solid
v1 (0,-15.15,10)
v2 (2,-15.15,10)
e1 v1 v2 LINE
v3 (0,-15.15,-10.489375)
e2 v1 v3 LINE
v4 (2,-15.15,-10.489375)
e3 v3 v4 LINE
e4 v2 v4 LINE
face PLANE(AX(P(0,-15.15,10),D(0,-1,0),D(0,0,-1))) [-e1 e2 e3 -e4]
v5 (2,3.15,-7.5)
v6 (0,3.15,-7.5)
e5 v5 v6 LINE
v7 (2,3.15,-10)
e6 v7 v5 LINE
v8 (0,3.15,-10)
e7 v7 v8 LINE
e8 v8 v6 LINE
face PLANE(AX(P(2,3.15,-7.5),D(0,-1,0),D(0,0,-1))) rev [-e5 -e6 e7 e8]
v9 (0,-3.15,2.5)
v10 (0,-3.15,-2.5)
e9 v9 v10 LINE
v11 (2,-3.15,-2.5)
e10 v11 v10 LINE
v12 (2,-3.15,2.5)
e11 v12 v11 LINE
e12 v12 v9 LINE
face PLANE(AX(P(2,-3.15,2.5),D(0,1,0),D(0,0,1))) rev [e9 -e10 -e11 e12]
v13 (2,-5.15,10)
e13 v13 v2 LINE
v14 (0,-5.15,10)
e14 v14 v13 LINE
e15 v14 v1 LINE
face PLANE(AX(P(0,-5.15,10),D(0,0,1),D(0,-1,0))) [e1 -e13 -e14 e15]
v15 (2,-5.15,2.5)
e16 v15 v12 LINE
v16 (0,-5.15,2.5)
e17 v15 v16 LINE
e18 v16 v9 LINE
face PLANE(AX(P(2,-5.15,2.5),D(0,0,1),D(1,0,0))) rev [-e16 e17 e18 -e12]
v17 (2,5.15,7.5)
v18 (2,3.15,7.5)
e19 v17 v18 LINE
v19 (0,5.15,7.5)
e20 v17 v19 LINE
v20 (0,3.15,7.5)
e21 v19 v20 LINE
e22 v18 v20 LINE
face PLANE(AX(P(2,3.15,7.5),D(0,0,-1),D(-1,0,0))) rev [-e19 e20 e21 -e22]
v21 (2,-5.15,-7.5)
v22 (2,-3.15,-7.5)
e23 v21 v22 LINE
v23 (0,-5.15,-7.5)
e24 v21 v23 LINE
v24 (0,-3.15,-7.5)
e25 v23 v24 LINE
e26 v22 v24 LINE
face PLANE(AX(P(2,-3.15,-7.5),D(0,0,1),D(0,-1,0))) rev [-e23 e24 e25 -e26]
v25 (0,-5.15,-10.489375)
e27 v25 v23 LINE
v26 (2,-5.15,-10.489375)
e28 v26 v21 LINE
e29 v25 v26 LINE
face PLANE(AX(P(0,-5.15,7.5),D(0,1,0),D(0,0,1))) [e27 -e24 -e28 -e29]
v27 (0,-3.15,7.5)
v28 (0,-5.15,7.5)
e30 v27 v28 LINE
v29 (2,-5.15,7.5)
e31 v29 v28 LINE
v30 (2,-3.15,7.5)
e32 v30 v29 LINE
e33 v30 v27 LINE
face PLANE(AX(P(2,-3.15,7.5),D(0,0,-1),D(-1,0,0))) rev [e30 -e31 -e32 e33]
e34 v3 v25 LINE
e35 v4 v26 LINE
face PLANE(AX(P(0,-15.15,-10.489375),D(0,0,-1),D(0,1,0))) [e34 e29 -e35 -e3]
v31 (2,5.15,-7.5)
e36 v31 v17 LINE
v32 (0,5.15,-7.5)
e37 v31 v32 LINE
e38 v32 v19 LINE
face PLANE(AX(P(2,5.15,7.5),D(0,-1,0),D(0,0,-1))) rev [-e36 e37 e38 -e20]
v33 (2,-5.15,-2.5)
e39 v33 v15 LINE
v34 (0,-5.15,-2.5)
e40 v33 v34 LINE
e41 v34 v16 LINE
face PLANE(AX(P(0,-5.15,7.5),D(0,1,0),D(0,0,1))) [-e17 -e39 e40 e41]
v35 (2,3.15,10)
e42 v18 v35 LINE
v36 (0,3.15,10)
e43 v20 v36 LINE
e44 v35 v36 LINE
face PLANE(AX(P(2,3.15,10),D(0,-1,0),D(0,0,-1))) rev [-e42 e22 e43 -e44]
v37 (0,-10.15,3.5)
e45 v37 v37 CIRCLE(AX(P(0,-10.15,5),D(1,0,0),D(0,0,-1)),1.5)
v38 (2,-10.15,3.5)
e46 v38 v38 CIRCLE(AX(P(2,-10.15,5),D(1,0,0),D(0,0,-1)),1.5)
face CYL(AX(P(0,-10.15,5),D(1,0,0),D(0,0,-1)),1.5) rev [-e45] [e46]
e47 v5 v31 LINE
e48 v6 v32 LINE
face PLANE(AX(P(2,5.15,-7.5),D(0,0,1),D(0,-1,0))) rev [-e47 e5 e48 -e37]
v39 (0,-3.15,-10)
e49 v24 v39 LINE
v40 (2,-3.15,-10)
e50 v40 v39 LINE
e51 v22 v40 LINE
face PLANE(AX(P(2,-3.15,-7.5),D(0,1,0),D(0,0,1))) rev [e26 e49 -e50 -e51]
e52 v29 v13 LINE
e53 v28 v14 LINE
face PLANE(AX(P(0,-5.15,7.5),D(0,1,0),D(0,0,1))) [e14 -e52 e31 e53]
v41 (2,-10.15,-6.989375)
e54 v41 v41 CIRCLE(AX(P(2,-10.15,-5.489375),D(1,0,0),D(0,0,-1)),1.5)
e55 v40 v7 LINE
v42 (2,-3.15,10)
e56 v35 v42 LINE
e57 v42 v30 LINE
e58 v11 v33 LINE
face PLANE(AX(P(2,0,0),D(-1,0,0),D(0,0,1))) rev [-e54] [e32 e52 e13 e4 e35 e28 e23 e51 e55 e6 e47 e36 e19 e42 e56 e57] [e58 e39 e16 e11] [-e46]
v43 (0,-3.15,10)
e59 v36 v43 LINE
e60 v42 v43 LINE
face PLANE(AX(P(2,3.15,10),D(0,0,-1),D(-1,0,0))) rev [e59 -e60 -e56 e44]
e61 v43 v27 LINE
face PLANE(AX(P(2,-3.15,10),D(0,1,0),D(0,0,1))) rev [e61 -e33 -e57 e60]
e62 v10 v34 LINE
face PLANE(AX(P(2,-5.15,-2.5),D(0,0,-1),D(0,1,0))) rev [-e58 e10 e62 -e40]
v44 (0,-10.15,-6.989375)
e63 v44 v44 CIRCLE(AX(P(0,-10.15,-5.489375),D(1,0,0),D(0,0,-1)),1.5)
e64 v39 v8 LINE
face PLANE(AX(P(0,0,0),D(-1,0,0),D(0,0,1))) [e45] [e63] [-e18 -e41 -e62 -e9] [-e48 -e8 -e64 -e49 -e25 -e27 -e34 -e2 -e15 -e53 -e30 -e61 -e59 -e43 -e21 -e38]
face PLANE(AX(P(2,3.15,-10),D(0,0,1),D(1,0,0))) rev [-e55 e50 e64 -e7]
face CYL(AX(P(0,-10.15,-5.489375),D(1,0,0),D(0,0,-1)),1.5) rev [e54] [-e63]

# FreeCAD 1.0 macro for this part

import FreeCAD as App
import Part
import Sketcher

V = App.Vector

doc = App.newDocument("Part")
body = doc.addObject("PartDesign::Body", "Body")

# Sketch on YZ plane
sketch1 = body.newObject("Sketcher::SketchObject", "Sketch")
sketch1.AttachmentSupport = (doc.getObject("YZ_Plane"), [""])
sketch1.MapMode = "FlatFace"
sketch1.addGeometry([
    Part.LineSegment(V(5.2, 7.5, 0), V(3.1, 7.5, 0)),  # 0
    Part.LineSegment(V(3.1, 7.5, 0), V(3.1, 10, 0)),  # 1
    Part.LineSegment(V(3.1, 10, 0), V(-3.1, 10, 0)),  # 2
    Part.LineSegment(V(-3.1, 10, 0), V(-3.1, 7.5, 0)),  # 3
    Part.LineSegment(V(-3.1, 7.5, 0), V(-5.2, 7.5, 0)),  # 4
    Part.LineSegment(V(-5.2, 7.5, 0), V(-5.2, 2.5, 0)),  # 5
    Part.LineSegment(V(-5.2, 2.5, 0), V(-3.1, 2.5, 0)),  # 6
    Part.LineSegment(V(-3.1, 2.5, 0), V(-3.1, -2.5, 0)),  # 7
    Part.LineSegment(V(-3.1, -2.5, 0), V(-5.2, -2.5, 0)),  # 8
    Part.LineSegment(V(-5.2, -2.5, 0), V(-5.2, -7.5, 0)),  # 9
    Part.LineSegment(V(-5.2, -7.5, 0), V(-3.1, -7.5, 0)),  # 10
    Part.LineSegment(V(-3.1, -7.5, 0), V(-3.1, -10, 0)),  # 11
    Part.LineSegment(V(-3.1, -10, 0), V(3.1, -10, 0)),  # 12
    Part.LineSegment(V(3.1, -10, 0), V(3.1, -7.5, 0)),  # 13
    Part.LineSegment(V(3.1, -7.5, 0), V(5.2, -7.5, 0)),  # 14
    Part.LineSegment(V(5.2, -7.5, 0), V(5.2, -2.5, 0)),  # 15
    Part.LineSegment(V(5.2, -2.5, 0), V(3.1, -2.5, 0)),  # 16
    Part.LineSegment(V(3.1, -2.5, 0), V(3.1, 2.5, 0)),  # 17
    Part.LineSegment(V(3.1, 2.5, 0), V(5.2, 2.5, 0)),  # 18
    Part.LineSegment(V(5.2, 2.5, 0), V(5.2, 7.5, 0)),  # 19
], False)
sketch1.addConstraint([
    Sketcher.Constraint("Coincident", 0, 2, 1, 1),
    Sketcher.Constraint("Coincident", 1, 2, 2, 1),
    Sketcher.Constraint("Coincident", 2, 2, 3, 1),
    Sketcher.Constraint("Coincident", 3, 2, 4, 1),
    Sketcher.Constraint("Coincident", 4, 2, 5, 1),
    Sketcher.Constraint("Coincident", 5, 2, 6, 1),
    Sketcher.Constraint("Coincident", 6, 2, 7, 1),
    Sketcher.Constraint("Coincident", 7, 2, 8, 1),
    Sketcher.Constraint("Coincident", 8, 2, 9, 1),
    Sketcher.Constraint("Coincident", 9, 2, 10, 1),
    Sketcher.Constraint("Coincident", 10, 2, 11, 1),
    Sketcher.Constraint("Coincident", 11, 2, 12, 1),
    Sketcher.Constraint("Coincident", 12, 2, 13, 1),
    Sketcher.Constraint("Coincident", 13, 2, 14, 1),
    Sketcher.Constraint("Coincident", 14, 2, 15, 1),
    Sketcher.Constraint("Coincident", 15, 2, 16, 1),
    Sketcher.Constraint("Coincident", 16, 2, 17, 1),
    Sketcher.Constraint("Coincident", 17, 2, 18, 1),
    Sketcher.Constraint("Coincident", 18, 2, 19, 1),
    Sketcher.Constraint("Coincident", 19, 2, 0, 1),
    Sketcher.Constraint("Horizontal", 0),
    Sketcher.Constraint("Vertical", 1),
    Sketcher.Constraint("Horizontal", 2),
    Sketcher.Constraint("Vertical", 3),
    Sketcher.Constraint("Horizontal", 4),
    Sketcher.Constraint("Vertical", 5),
    Sketcher.Constraint("Horizontal", 6),
    Sketcher.Constraint("Vertical", 7),
    Sketcher.Constraint("Horizontal", 8),
    Sketcher.Constraint("Vertical", 9),
    Sketcher.Constraint("Horizontal", 10),
    Sketcher.Constraint("Vertical", 11),
    Sketcher.Constraint("Horizontal", 12),
    Sketcher.Constraint("Vertical", 13),
    Sketcher.Constraint("Horizontal", 14),
    Sketcher.Constraint("Vertical", 15),
    Sketcher.Constraint("Horizontal", 16),
    Sketcher.Constraint("Vertical", 17),
    Sketcher.Constraint("Horizontal", 18),
    Sketcher.Constraint("Vertical", 19),
    Sketcher.Constraint("Symmetric", 0, 2, 10, 2, -1, 1),
    Sketcher.Constraint("Symmetric", 2, 2, 12, 2, -1, 1),
    Sketcher.Constraint("Symmetric", 4, 2, 14, 2, -1, 1),
    Sketcher.Constraint("Symmetric", 6, 2, 16, 2, -1, 1),
    Sketcher.Constraint("Symmetric", 8, 2, 18, 2, -1, 1),
    Sketcher.Constraint("Symmetric", 0, 2, 3, 2, -2),
    Sketcher.Constraint("Symmetric", 8, 2, 15, 2, -2),
    Sketcher.Constraint("Vertical", 3, 2, 6, 2),
    Sketcher.Constraint("Equal", 5, 7),
    Sketcher.Constraint("DistanceX", 0, 2, 0, 1, 2.0),
    Sketcher.Constraint("DistanceY", 5, 2, 5, 1, 5.0),
    Sketcher.Constraint("DistanceX", 2, 2, 2, 1, 6.3),
    Sketcher.Constraint("DistanceY", 1, 1, 1, 2, 2.5),
])
pad1 = body.newObject("PartDesign::Pad", "Pad")
pad1.Profile = sketch1
pad1.Length = 2

# Sketch on YZ plane
sketch2 = body.newObject("Sketcher::SketchObject", "Sketch001")
sketch2.AttachmentSupport = (doc.getObject("YZ_Plane"), [""])
sketch2.MapMode = "FlatFace"
sketch2.AttachmentOffset = App.Placement(V(0, 0, 2), App.Rotation())
sketch2.addGeometry([
    Part.LineSegment(V(-5.2, 10, 0), V(-15.2, 10, 0)),  # 0
    Part.LineSegment(V(-15.2, 10, 0), V(-15.2, -10.5, 0)),  # 1
    Part.LineSegment(V(-15.2, -10.5, 0), V(-5.2, -10.5, 0)),  # 2
    Part.LineSegment(V(-5.2, -10.5, 0), V(-5.2, 10, 0)),  # 3
    Part.Circle(V(-10.2, 5, 0), V(0, 0, 1), 1.5),  # 4
    Part.Circle(V(-10.2, -5.5, 0), V(0, 0, 1), 1.5),  # 5
], False)
sketch2.addConstraint([
    Sketcher.Constraint("Coincident", 0, 2, 1, 1),
    Sketcher.Constraint("Coincident", 1, 2, 2, 1),
    Sketcher.Constraint("Coincident", 2, 2, 3, 1),
    Sketcher.Constraint("Coincident", 3, 2, 0, 1),
    Sketcher.Constraint("Horizontal", 0),
    Sketcher.Constraint("Vertical", 1),
    Sketcher.Constraint("Horizontal", 2),
    Sketcher.Constraint("Vertical", 3),
    Sketcher.Constraint("Equal", 4, 5),
    Sketcher.Constraint("Vertical", 4, 3, 5, 3),
    Sketcher.Constraint("Diameter", 4, 3.0),
    Sketcher.Constraint("DistanceX", 0, 2, 0, 1, 10.0),
    Sketcher.Constraint("DistanceY", -1, 1, 4, 3, 5.0),
    Sketcher.Constraint("DistanceY", -1, 1, 0, 2, 10.0),
    Sketcher.Constraint("DistanceX", 0, 2, 4, 3, 5.0),
    Sketcher.Constraint("DistanceY", 1, 2, 5, 3, 5.0),
    Sketcher.Constraint("DistanceX", 4, 3, -1, 1, 10.15),
    Sketcher.Constraint("DistanceY", 1, 2, 1, 1, 20.489375),
])
pad2 = body.newObject("PartDesign::Pad", "Pad001")
pad2.Profile = sketch2
pad2.Length = 2
pad2.Reversed = True

# Sketch on YZ plane
sketch3 = body.newObject("Sketcher::SketchObject", "Sketch002")
sketch3.AttachmentSupport = (doc.getObject("YZ_Plane"), [""])
sketch3.MapMode = "FlatFace"
sketch3.AttachmentOffset = App.Placement(V(0, 0, 2), App.Rotation())
sketch3.addGeometry([
    Part.LineSegment(V(5.2, 2.5, 0), V(3.1, 2.5, 0)),
    Part.LineSegment(V(3.1, 2.5, 0), V(3.1, -2.5, 0)),
    Part.LineSegment(V(3.1, -2.5, 0), V(5.2, -2.5, 0)),
    Part.LineSegment(V(5.2, -2.5, 0), V(5.2, 2.5, 0)),
], False)
sketch3.addConstraint([
    Sketcher.Constraint("Coincident", 0, 2, 1, 1),
    Sketcher.Constraint("Coincident", 1, 2, 2, 1),
    Sketcher.Constraint("Coincident", 2, 2, 3, 1),
    Sketcher.Constraint("Coincident", 3, 2, 0, 1),
    Sketcher.Constraint("Horizontal", 0),
    Sketcher.Constraint("Vertical", 1),
    Sketcher.Constraint("Horizontal", 2),
    Sketcher.Constraint("Vertical", 3),
    Sketcher.Constraint("DistanceX", 0, 2, 0, 1, 2.0),
    Sketcher.Constraint("DistanceY", 1, 2, 1, 1, 5.0),
    Sketcher.Constraint("DistanceY", -1, 1, 0, 2, 2.5),
    Sketcher.Constraint("DistanceX", -1, 1, 0, 2, 3.15),
])
pad3 = body.newObject("PartDesign::Pad", "Pad002")
pad3.Profile = sketch3
pad3.Length = 2
pad3.Reversed = True

doc.recompute()
